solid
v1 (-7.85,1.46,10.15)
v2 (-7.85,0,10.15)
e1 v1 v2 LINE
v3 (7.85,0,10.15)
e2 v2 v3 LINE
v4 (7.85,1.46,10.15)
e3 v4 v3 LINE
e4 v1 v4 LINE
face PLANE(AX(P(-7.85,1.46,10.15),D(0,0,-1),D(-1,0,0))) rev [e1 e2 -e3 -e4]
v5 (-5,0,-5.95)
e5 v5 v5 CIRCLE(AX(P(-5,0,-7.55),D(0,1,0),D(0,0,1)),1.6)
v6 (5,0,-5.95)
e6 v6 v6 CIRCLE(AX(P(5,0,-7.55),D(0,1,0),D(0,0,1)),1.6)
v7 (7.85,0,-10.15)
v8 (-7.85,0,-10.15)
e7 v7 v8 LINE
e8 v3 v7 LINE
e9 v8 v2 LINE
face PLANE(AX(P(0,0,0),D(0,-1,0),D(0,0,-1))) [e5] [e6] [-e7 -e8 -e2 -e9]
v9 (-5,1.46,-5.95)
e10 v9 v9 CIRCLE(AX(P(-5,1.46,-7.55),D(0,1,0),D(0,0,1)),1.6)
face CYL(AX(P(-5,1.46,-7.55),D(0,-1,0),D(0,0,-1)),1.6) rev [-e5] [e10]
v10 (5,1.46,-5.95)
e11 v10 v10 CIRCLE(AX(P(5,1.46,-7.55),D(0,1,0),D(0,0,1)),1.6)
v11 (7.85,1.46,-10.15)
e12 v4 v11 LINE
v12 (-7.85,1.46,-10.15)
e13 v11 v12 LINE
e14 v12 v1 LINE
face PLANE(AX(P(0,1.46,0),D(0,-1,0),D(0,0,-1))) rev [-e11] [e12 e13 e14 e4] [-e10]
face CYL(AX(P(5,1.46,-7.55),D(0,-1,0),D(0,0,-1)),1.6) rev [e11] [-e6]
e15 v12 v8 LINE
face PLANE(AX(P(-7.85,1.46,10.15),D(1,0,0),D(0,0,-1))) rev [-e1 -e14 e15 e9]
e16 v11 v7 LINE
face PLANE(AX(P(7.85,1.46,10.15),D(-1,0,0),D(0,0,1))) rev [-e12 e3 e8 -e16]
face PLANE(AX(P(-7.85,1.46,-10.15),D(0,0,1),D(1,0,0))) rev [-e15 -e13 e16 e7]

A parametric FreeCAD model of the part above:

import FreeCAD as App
import Part
import Sketcher
from FreeCAD import Vector

doc = App.newDocument("Part")
body = doc.addObject("PartDesign::Body", "Body")

# Sketch on XZ plane
sketch1 = body.newObject("Sketcher::SketchObject", "Sketch")
sketch1.AttachmentSupport = (doc.getObject("XZ_Plane"), [""])
sketch1.MapMode = "FlatFace"
sketch1.addGeometry([
    Part.LineSegment(Vector(-7.85, -10.15, 0), Vector(-7.85, 10.15, 0)),  # 0
    Part.LineSegment(Vector(-7.85, 10.15, 0), Vector(7.85, 10.15, 0)),  # 1
    Part.LineSegment(Vector(7.85, 10.15, 0), Vector(7.85, -10.15, 0)),  # 2
    Part.LineSegment(Vector(7.85, -10.15, 0), Vector(-7.85, -10.15, 0)),  # 3
    Part.Circle(Vector(5, -7.55, 0), Vector(0, 0, 1), 1.6),  # 4
    Part.Circle(Vector(-5, -7.55, 0), Vector(0, 0, 1), 1.6),  # 5
], False)
sketch1.addConstraint([
    Sketcher.Constraint("Coincident", 0, 2, 1, 1),
    Sketcher.Constraint("Coincident", 1, 2, 2, 1),
    Sketcher.Constraint("Coincident", 2, 2, 3, 1),
    Sketcher.Constraint("Coincident", 3, 2, 0, 1),
    Sketcher.Constraint("Vertical", 0),
    Sketcher.Constraint("Horizontal", 1),
    Sketcher.Constraint("Vertical", 2),
    Sketcher.Constraint("Horizontal", 3),
    Sketcher.Constraint("Equal", 4, 5),
    Sketcher.Constraint("Symmetric", 0, 2, 2, 2, -1, 1),
    Sketcher.Constraint("Symmetric", 4, 3, 5, 3, -2),
    Sketcher.Constraint("Diameter", 4, 3.2),
    Sketcher.Constraint("DistanceX", 1, 1, 1, 2, 15.7),
    Sketcher.Constraint("DistanceY", 0, 1, 0, 2, 20.3),
    Sketcher.Constraint("DistanceX", -1, 1, 4, 3, 5.0),
    Sketcher.Constraint("DistanceY", 5, 3, 0, 2, 17.7),
])
pad1 = body.newObject("PartDesign::Pad", "Pad")
pad1.Profile = sketch1
pad1.Length = 1.46
pad1.Reversed = True

doc.recompute()
